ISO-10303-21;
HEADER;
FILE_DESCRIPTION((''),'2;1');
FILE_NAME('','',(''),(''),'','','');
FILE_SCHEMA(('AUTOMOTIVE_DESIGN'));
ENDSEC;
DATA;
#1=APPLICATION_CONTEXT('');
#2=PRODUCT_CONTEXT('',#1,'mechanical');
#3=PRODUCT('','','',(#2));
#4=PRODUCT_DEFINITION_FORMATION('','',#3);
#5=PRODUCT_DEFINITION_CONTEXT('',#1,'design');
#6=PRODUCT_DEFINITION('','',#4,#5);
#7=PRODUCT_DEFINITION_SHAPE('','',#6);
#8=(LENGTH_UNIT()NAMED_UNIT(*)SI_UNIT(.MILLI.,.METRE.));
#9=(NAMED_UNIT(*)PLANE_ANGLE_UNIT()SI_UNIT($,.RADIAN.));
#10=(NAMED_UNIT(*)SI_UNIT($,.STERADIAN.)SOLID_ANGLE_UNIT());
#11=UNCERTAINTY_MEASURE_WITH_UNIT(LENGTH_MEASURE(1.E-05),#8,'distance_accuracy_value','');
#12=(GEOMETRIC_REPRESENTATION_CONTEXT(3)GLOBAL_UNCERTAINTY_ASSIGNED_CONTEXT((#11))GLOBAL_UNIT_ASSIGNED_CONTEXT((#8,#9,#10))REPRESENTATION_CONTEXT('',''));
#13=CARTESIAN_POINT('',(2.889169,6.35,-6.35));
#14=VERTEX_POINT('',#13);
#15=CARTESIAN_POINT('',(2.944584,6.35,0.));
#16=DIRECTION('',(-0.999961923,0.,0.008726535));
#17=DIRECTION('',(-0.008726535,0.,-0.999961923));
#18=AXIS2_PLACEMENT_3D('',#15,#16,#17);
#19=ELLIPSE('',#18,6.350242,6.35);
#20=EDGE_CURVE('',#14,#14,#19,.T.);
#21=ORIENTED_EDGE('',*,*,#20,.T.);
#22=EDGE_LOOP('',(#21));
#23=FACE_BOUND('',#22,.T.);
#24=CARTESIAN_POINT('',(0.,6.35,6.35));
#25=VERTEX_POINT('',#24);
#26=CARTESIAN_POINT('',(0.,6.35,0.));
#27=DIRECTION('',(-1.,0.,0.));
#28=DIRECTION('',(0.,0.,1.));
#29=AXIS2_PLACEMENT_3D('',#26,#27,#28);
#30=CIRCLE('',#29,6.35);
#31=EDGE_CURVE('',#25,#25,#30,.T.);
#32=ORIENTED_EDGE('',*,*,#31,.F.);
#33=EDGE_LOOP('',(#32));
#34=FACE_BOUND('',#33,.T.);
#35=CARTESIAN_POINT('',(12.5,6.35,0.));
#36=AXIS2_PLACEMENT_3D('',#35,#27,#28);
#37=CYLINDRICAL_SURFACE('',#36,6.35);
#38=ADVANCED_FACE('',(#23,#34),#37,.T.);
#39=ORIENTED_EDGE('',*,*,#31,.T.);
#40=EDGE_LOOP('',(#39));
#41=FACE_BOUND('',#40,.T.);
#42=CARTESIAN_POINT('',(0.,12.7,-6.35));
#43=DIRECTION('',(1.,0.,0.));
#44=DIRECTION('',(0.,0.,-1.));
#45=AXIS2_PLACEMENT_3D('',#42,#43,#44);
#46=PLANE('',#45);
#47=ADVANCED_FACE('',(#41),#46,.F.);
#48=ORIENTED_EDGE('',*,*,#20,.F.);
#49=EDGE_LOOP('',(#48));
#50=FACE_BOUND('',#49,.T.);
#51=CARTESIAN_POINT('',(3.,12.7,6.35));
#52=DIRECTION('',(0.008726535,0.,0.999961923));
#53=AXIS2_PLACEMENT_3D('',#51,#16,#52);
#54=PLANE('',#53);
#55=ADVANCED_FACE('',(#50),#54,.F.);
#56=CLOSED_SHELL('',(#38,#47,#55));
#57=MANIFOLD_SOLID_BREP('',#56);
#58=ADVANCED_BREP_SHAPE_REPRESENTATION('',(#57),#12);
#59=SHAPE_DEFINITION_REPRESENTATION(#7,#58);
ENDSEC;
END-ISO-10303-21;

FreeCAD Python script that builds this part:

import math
import FreeCAD as App
import Part
import Sketcher
Q = App.Units.Quantity

doc = App.newDocument("Part")
body = doc.addObject("PartDesign::Body", "Body")

# Sketch on XZ plane
sketch1 = doc.addObject("Sketcher::SketchObject", "Sketch")
body.addObject(sketch1)
sketch1.AttachmentSupport = (doc.XZ_Plane, [""])
sketch1.MapMode = "FlatFace"
sketch1.addGeometry(Part.LineSegment(App.Vector(0, -6.3, 0), App.Vector(0, 6.3, 0)), False)
sketch1.addGeometry(Part.LineSegment(App.Vector(0, 6.3, 0), App.Vector(3, 6.3, 0)), False)
sketch1.addGeometry(Part.LineSegment(App.Vector(3, 6.3, 0), App.Vector(2.9, -6.3, 0)), False)
sketch1.addGeometry(Part.LineSegment(App.Vector(2.9, -6.3, 0), App.Vector(0, -6.3, 0)), False)
sketch1.addConstraint(Sketcher.Constraint("Coincident", 0, 2, 1, 1))
sketch1.addConstraint(Sketcher.Constraint("Coincident", 1, 2, 2, 1))
sketch1.addConstraint(Sketcher.Constraint("Coincident", 2, 2, 3, 1))
sketch1.addConstraint(Sketcher.Constraint("Coincident", 3, 2, 0, 1))
sketch1.addConstraint(Sketcher.Constraint("Vertical", 0))
sketch1.addConstraint(Sketcher.Constraint("Horizontal", 1))
sketch1.addConstraint(Sketcher.Constraint("Horizontal", 3))
sketch1.addConstraint(Sketcher.Constraint("Symmetric", 0, 2, 3, 2, -1, 1))
sketch1.addConstraint(Sketcher.Constraint("DistanceX", 1, 1, 1, 2, 3.0))
sketch1.addConstraint(Sketcher.Constraint("DistanceY", 0, 1, 0, 2, 12.7))
sketch1.addConstraint(Sketcher.Constraint("Angle", 2, Q("-90.5 deg")))
pad1 = doc.addObject("PartDesign::Pad", "Pad")
body.addObject(pad1)
pad1.Profile = sketch1
pad1.Length = 12.7
pad1.Reversed = True

# Sketch on YZ plane
sketch2 = doc.addObject("Sketcher::SketchObject", "Sketch001")
body.addObject(sketch2)
sketch2.AttachmentSupport = (doc.YZ_Plane, [""])
sketch2.MapMode = "FlatFace"
sketch2.addGeometry(Part.LineSegment(App.Vector(13, -6, 0), App.Vector(6, -6, 0)), False)
sketch2.addGeometry(Part.ArcOfCircle(Part.Circle(App.Vector(6, 0, 0), App.Vector(0, 0, 1), 6), math.radians(-90), math.radians(0)), False)
sketch2.addGeometry(Part.LineSegment(App.Vector(13, 0, 0), App.Vector(13, -6, 0)), False)
sketch2.addGeometry(Part.LineSegment(App.Vector(6, -6, 0), App.Vector(0, -6, 0)), False)
sketch2.addGeometry(Part.LineSegment(App.Vector(0, -6, 0), App.Vector(0, 0, 0)), False)
sketch2.addGeometry(Part.ArcOfCircle(Part.Circle(App.Vector(6, 0, 0), App.Vector(0, 0, 1), 6), math.radians(180), math.radians(270)), False)
sketch2.addGeometry(Part.ArcOfCircle(Part.Circle(App.Vector(6, 0, 0), App.Vector(0, 0, 1), 6), math.radians(90), math.radians(180)), False)
sketch2.addGeometry(Part.LineSegment(App.Vector(0, 0, 0), App.Vector(0, 6, 0)), False)
sketch2.addGeometry(Part.LineSegment(App.Vector(0, 6, 0), App.Vector(6, 6, 0)), False)
sketch2.addGeometry(Part.ArcOfCircle(Part.Circle(App.Vector(6, 0, 0), App.Vector(0, 0, 1), 6), math.radians(0), math.radians(90)), False)
sketch2.addGeometry(Part.LineSegment(App.Vector(6, 6, 0), App.Vector(13, 6, 0)), False)
sketch2.addGeometry(Part.LineSegment(App.Vector(13, 6, 0), App.Vector(13, 0, 0)), False)
sketch2.addConstraint(Sketcher.Constraint("Tangent", 0, 2, 1, 1))
sketch2.addConstraint(Sketcher.Constraint("Tangent", 1, 2, 2, 1))
sketch2.addConstraint(Sketcher.Constraint("Coincident", 2, 2, 0, 1))
sketch2.addConstraint(Sketcher.Constraint("Coincident", 3, 2, 4, 1))
sketch2.addConstraint(Sketcher.Constraint("Tangent", 4, 2, 5, 1))
sketch2.addConstraint(Sketcher.Constraint("Tangent", 5, 2, 3, 1))
sketch2.addConstraint(Sketcher.Constraint("Tangent", 6, 2, 7, 1))
sketch2.addConstraint(Sketcher.Constraint("Coincident", 7, 2, 8, 1))
sketch2.addConstraint(Sketcher.Constraint("Tangent", 8, 2, 6, 1))
sketch2.addConstraint(Sketcher.Constraint("Tangent", 9, 2, 10, 1))
sketch2.addConstraint(Sketcher.Constraint("Coincident", 10, 2, 11, 1))
sketch2.addConstraint(Sketcher.Constraint("Tangent", 11, 2, 9, 1))
sketch2.addConstraint(Sketcher.Constraint("Horizontal", 0))
sketch2.addConstraint(Sketcher.Constraint("Vertical", 2))
sketch2.addConstraint(Sketcher.Constraint("Horizontal", 3))
sketch2.addConstraint(Sketcher.Constraint("Vertical", 4))
sketch2.addConstraint(Sketcher.Constraint("Vertical", 7))
sketch2.addConstraint(Sketcher.Constraint("Horizontal", 8))
sketch2.addConstraint(Sketcher.Constraint("Horizontal", 10))
sketch2.addConstraint(Sketcher.Constraint("Vertical", 11))
sketch2.addConstraint(Sketcher.Constraint("Coincident", 4, 2, -1, 1))
sketch2.addConstraint(Sketcher.Constraint("Coincident", 6, 2, -1, 1))
sketch2.addConstraint(Sketcher.Constraint("Coincident", 5, 3, 1, 3))
sketch2.addConstraint(Sketcher.Constraint("Coincident", 9, 3, 1, 3))
sketch2.addConstraint(Sketcher.Constraint("Coincident", 9, 2, 8, 2))
sketch2.addConstraint(Sketcher.Constraint("Equal", 1, 5))
sketch2.addConstraint(Sketcher.Constraint("Radius", 1, 6.35))
pocket1 = doc.addObject("PartDesign::Pocket", "Pocket")
body.addObject(pocket1)
pocket1.Profile = sketch2
pocket1.Length = 12.5
pocket1.Reversed = True

doc.recompute()
